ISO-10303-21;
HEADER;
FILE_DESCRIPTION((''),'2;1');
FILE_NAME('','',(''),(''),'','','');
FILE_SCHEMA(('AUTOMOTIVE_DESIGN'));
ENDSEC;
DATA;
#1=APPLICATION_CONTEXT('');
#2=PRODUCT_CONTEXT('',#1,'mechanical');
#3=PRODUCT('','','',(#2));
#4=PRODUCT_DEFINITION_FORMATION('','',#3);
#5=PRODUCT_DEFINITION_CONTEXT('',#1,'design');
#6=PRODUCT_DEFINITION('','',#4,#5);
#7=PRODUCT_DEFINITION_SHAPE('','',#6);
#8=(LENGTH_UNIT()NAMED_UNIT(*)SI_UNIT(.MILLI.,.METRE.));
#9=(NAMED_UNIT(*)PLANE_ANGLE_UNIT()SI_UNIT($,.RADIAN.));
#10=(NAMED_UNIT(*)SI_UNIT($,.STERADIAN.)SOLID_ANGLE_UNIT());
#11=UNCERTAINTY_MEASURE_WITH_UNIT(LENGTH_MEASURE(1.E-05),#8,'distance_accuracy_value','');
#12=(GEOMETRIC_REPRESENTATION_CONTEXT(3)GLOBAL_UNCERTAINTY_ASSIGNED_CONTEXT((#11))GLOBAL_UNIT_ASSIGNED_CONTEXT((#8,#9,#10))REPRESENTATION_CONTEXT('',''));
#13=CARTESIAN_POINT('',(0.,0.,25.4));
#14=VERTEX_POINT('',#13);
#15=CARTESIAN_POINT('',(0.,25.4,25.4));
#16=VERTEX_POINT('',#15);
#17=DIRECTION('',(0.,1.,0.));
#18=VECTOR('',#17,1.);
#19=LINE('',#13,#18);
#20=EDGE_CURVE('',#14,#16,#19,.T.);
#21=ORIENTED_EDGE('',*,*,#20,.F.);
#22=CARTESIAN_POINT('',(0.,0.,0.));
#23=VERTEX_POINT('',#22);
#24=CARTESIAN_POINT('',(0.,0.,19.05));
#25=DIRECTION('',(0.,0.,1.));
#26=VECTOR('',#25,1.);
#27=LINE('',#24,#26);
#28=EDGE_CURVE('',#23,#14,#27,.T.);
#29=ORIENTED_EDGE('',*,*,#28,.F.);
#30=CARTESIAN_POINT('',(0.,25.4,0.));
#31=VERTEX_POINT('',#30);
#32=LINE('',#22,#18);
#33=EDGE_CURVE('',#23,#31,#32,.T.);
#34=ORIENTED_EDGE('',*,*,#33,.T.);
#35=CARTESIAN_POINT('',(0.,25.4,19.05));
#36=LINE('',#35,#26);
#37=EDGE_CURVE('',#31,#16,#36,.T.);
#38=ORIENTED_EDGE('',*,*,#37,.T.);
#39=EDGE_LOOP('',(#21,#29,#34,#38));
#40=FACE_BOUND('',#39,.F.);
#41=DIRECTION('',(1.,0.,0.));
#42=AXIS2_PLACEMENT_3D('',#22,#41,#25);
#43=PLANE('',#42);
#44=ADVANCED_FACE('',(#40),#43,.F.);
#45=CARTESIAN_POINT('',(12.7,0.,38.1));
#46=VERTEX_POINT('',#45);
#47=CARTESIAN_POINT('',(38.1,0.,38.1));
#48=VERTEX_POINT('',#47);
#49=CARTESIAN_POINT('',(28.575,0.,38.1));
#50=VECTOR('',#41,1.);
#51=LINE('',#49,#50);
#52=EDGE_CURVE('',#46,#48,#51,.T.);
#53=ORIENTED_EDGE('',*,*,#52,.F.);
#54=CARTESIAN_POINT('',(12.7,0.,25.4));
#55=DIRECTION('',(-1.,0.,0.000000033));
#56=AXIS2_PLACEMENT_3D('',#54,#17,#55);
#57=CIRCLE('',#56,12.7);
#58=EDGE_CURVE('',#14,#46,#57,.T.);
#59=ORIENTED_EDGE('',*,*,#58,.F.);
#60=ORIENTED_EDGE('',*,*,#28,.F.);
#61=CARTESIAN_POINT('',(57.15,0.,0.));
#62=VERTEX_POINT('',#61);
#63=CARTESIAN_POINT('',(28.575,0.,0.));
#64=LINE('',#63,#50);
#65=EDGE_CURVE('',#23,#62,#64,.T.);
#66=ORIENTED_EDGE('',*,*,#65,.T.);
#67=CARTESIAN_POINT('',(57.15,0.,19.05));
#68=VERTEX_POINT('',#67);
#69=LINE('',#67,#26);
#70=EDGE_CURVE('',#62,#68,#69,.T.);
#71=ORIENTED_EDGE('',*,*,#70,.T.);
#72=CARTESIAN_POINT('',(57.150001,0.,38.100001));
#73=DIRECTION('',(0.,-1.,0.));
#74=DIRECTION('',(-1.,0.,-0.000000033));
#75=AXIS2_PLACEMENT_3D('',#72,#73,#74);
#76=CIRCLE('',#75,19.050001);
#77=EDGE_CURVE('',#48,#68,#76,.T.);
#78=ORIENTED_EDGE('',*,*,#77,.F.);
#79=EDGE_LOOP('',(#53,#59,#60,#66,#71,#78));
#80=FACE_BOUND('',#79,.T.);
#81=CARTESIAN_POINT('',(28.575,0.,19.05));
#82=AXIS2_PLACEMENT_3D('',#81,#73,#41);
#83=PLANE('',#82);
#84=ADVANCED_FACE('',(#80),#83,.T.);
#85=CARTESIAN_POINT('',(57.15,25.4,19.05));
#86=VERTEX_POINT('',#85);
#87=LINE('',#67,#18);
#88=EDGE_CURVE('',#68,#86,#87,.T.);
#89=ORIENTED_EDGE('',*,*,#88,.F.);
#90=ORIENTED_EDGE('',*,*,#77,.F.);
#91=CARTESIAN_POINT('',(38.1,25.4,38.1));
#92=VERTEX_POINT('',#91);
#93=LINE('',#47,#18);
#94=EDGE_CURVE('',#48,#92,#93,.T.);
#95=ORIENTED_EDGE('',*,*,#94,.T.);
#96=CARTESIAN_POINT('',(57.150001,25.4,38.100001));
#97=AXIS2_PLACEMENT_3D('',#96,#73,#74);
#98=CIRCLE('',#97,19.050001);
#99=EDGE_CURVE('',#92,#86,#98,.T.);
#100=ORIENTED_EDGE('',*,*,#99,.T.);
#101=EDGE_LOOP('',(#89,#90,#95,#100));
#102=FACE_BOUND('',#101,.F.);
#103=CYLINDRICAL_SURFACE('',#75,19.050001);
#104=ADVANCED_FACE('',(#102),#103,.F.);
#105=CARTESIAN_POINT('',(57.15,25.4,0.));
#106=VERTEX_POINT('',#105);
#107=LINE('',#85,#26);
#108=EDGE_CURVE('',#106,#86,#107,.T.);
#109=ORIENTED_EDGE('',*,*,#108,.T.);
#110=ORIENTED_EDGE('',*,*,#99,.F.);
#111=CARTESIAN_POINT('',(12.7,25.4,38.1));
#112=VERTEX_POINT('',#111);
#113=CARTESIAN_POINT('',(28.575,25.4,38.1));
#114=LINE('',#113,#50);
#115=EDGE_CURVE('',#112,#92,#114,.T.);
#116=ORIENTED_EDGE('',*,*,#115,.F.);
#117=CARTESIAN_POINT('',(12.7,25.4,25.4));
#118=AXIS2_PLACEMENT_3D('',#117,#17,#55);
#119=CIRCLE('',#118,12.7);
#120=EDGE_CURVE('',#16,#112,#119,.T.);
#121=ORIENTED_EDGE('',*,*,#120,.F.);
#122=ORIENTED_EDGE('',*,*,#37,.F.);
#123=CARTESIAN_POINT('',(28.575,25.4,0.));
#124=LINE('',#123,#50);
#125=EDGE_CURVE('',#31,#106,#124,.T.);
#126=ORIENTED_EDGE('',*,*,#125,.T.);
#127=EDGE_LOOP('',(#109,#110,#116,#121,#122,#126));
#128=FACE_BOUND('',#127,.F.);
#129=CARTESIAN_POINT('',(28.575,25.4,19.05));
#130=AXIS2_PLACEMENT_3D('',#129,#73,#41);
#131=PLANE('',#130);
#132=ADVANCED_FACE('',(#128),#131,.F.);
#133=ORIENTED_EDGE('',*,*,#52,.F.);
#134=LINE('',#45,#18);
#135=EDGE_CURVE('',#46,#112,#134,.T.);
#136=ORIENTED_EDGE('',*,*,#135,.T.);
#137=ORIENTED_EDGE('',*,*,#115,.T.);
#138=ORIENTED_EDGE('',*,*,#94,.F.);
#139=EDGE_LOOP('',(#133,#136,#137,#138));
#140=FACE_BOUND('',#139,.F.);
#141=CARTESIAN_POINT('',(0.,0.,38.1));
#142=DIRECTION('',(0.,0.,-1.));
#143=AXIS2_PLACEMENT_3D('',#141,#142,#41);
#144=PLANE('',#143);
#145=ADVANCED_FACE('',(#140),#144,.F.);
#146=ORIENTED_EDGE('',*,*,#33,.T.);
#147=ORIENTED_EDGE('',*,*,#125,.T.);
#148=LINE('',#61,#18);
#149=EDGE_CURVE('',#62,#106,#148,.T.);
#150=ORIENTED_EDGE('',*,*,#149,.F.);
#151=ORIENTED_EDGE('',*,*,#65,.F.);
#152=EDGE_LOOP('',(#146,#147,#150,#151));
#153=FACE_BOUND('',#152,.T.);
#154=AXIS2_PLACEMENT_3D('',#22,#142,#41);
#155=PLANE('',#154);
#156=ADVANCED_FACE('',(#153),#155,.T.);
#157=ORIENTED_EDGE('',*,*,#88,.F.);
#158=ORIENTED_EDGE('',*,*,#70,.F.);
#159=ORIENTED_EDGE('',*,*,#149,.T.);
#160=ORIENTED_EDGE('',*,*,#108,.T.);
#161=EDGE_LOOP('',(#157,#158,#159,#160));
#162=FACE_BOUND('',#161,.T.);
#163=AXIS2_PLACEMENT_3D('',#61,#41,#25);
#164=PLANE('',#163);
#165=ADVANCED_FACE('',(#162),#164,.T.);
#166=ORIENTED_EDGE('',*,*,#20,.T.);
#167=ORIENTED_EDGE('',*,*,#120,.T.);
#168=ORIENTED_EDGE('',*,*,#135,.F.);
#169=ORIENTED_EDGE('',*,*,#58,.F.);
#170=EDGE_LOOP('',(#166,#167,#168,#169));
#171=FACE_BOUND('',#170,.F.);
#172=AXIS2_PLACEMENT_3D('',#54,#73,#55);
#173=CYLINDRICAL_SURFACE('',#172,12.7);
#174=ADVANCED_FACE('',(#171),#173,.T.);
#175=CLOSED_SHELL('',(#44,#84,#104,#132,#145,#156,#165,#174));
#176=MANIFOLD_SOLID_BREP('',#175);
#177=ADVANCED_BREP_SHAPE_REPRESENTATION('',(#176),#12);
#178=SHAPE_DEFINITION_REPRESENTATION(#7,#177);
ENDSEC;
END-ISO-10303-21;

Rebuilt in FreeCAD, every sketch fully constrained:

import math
import FreeCAD as App
import Part
import Sketcher

V = App.Vector
Q = App.Units.Quantity


def add_polygon(sketch, points):
    """Adds a closed chain of lines whose ends are joined by coincident constraints."""
    first, n = sketch.GeometryCount, len(points)
    for a, b in zip(points, points[1:] + points[:1]):
        sketch.addGeometry(Part.LineSegment(App.Vector(*a, 0), App.Vector(*b, 0)), False)
    for i in range(n):
        sketch.addConstraint(Sketcher.Constraint("Coincident", first + i, 2, first + (i + 1) % n, 1))

doc = App.newDocument("Part")
body = doc.addObject("PartDesign::Body", "Body")

sketch1 = doc.addObject("Sketcher::SketchObject", "Sketch")
body.addObject(sketch1)
sketch1.AttachmentSupport = (doc.XZ_Plane, [""])
sketch1.MapMode = "FlatFace"
add_polygon(sketch1, [(0, 38), (0, 0), (57, 0), (57, 38)])
sketch1.addConstraint([
    Sketcher.Constraint("Vertical", 0),
    Sketcher.Constraint("Horizontal", 1),
    Sketcher.Constraint("Vertical", 2),
    Sketcher.Constraint("Horizontal", 3),
    Sketcher.Constraint("Coincident", 0, 2, -1, 1),
    Sketcher.Constraint("DistanceY", 0, 2, 0, 1, Q("1.5 in")),
    Sketcher.Constraint("DistanceX", 1, 1, 1, 2, Q("2.25 in")),
])
pad1 = doc.addObject("PartDesign::Pad", "Pad")
body.addObject(pad1)
pad1.Profile = sketch1
pad1.Length = Q("1 in")
pad1.Reversed = True

sketch2 = doc.addObject("Sketcher::SketchObject", "Sketch001")
body.addObject(sketch2)
sketch2.AttachmentSupport = (doc.XZ_Plane, [""])
sketch2.MapMode = "FlatFace"
sketch2.addGeometry([
    Part.LineSegment(V(57, 38, 0), V(38, 38, 0)),
    Part.ArcOfCircle(Part.Circle(V(57, 38, 0), V(0, 0, 1), 19), math.radians(-180), math.radians(-90)),
    Part.LineSegment(V(57, 19, 0), V(57, 38, 0)),
], False)
sketch2.addConstraint([
    Sketcher.Constraint("Coincident", 0, 2, 1, 1),
    Sketcher.Constraint("Coincident", 1, 2, 2, 1),
    Sketcher.Constraint("Coincident", 2, 2, 0, 1),
    Sketcher.Constraint("Horizontal", 0),
    Sketcher.Constraint("Vertical", 2),
    Sketcher.Constraint("Coincident", 2, 2, 1, 3),
    Sketcher.Constraint("Radius", 1, Q("0.75 in")),
    Sketcher.Constraint("DistanceY", -1, 1, 1, 3, Q("1.5 in")),
    Sketcher.Constraint("DistanceX", -1, 1, 0, 2, Q("1.5 in")),
])
pocket1 = doc.addObject("PartDesign::Pocket", "Pocket")
body.addObject(pocket1)
pocket1.Profile = sketch2
pocket1.Length = Q("1 in")

sketch3 = doc.addObject("Sketcher::SketchObject", "Sketch002")
body.addObject(sketch3)
sketch3.AttachmentSupport = (doc.XZ_Plane, [""])
sketch3.MapMode = "FlatFace"
sketch3.addGeometry([
    Part.ArcOfCircle(Part.Circle(V(13, 25, 0), V(0, 0, 1), 13), math.radians(90), math.radians(180)),
    Part.LineSegment(V(13, 38, 0), V(0, 38, 0)),
    Part.LineSegment(V(0, 38, 0), V(0, 25, 0)),
], False)
sketch3.addConstraint([
    Sketcher.Constraint("Tangent", 0, 1, 1, 1),
    Sketcher.Constraint("Coincident", 1, 2, 2, 1),
    Sketcher.Constraint("Tangent", 2, 2, 0, 2),
    Sketcher.Constraint("Horizontal", 1),
    Sketcher.Constraint("Vertical", 2),
    Sketcher.Constraint("PointOnObject", 1, 2, -2),
    Sketcher.Constraint("Radius", 0, Q("0.5 in")),
    Sketcher.Constraint("DistanceY", -1, 1, 0, 3, Q("1 in")),
])
pocket2 = doc.addObject("PartDesign::Pocket", "Pocket001")
body.addObject(pocket2)
pocket2.Profile = sketch3
pocket2.Length = Q("1 in")

doc.recompute()
